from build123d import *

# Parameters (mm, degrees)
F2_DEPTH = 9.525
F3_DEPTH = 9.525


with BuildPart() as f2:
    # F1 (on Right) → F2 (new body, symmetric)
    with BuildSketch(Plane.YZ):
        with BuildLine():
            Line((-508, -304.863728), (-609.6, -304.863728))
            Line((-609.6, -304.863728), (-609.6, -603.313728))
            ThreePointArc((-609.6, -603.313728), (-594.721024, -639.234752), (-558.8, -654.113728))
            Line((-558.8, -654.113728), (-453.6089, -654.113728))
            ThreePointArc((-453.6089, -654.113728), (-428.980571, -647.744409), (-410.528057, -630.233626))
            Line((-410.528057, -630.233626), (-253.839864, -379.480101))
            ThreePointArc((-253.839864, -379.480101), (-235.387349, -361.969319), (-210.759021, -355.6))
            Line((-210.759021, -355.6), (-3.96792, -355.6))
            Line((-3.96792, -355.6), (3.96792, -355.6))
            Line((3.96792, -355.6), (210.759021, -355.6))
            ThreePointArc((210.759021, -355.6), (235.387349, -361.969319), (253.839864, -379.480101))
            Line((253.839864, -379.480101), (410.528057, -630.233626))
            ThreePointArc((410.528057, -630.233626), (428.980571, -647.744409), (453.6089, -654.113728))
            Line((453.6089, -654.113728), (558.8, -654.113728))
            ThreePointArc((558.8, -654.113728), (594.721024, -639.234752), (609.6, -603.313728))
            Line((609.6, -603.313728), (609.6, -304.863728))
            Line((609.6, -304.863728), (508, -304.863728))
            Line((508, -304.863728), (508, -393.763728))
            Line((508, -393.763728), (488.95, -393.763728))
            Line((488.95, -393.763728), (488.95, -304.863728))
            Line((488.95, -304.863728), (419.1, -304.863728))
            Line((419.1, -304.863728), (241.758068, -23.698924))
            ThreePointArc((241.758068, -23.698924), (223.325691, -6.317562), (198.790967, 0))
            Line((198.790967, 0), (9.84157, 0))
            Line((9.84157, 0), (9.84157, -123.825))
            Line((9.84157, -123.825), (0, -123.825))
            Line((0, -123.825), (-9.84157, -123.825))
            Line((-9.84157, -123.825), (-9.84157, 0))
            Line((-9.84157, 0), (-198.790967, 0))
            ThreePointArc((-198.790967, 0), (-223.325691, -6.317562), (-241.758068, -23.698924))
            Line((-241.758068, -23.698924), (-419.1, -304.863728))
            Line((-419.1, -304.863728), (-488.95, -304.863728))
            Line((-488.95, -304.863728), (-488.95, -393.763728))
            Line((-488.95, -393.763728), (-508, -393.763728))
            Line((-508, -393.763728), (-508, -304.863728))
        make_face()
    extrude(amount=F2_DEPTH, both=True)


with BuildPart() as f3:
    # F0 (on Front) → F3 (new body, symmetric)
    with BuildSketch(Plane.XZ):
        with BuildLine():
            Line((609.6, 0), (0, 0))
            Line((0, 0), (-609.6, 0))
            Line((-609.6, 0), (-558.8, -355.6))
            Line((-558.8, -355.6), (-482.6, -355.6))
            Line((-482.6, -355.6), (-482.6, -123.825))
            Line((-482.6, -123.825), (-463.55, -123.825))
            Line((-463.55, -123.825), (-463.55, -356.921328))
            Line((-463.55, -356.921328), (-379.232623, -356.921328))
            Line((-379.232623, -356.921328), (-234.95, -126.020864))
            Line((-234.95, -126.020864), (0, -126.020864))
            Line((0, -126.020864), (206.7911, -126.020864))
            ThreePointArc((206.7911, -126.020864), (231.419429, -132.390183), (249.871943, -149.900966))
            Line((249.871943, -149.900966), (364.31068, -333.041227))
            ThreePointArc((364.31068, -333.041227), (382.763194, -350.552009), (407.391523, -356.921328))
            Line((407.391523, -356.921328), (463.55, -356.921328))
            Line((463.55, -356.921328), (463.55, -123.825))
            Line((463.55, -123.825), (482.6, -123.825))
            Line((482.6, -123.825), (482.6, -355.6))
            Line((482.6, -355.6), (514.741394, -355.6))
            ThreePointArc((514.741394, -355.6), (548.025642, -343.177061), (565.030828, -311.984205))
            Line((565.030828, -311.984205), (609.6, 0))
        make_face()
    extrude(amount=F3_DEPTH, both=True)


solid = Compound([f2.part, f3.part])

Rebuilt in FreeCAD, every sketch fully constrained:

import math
import FreeCAD as App
import Part
import Sketcher
Q = App.Units.Quantity

doc = App.newDocument("Part")
params = doc.addObject("Spreadsheet::Sheet", "Params")
for row, (alias, value) in enumerate([
    ("sketch1_radius", "2.0000001 in"),
    ("sketch1_radius2", "1.9999999 in"),
    ("sketch1_width", "4 in"),
    ("sketch1_height", "3.5 in"),
    ("sketch1_width2", "0.75 in"),
    ("pad1_length", "0.75 in"),
    ("sketch2_radius", "1.9999999 in"),
    ("sketch2_radius2", "2 in"),
    ("sketch2_width", "48 in"),
    ("sketch2_width2", "3 in"),
    ("sketch2_width3", "0.75 in"),
    ("pad2_length", "0.75 in"),
], start=1):
    params.set(f"A{row}", alias)
    params.set(f"B{row}", "=" + value)
    params.setAlias(f"B{row}", alias)

body = doc.addObject("PartDesign::Body", "Body")

# Sketch on YZ plane
sketch1 = body.newObject("Sketcher::SketchObject", "Sketch")
sketch1.AttachmentSupport = (doc.getObject("YZ_Plane"), [""])
sketch1.MapMode = "FlatFace"
sketch1.addGeometry(Part.LineSegment(App.Vector(-508, -304.863728, 0), App.Vector(-609.6, -304.863728, 0)), False)
sketch1.addGeometry(Part.LineSegment(App.Vector(-609.6, -304.863728, 0), App.Vector(-609.6, -603.313728, 0)), False)
sketch1.addGeometry(Part.ArcOfCircle(Part.Circle(App.Vector(-558.799998, -603.313726, 0), App.Vector(0, 0, 1), 50.800002), math.radians(-179.999998), math.radians(-90.000002)), False)
sketch1.addGeometry(Part.LineSegment(App.Vector(-558.8, -654.113728, 0), App.Vector(-453.6089, -654.113728, 0)), False)
sketch1.addGeometry(Part.ArcOfCircle(Part.Circle(App.Vector(-453.608899, -603.313731, 0), App.Vector(0, 0, 1), 50.799997), math.radians(-90.000001), math.radians(-31.999998)), False)
sketch1.addGeometry(Part.LineSegment(App.Vector(-410.528057, -630.233626, 0), App.Vector(-253.839864, -379.480101, 0)), False)
sketch1.addGeometry(Part.ArcOfCircle(Part.Circle(App.Vector(-210.759019, -406.400003, 0), App.Vector(0, 0, 1), 50.800003), math.radians(90.000002), math.radians(147.999998)), False)
sketch1.addGeometry(Part.LineSegment(App.Vector(-210.759021, -355.6, 0), App.Vector(210.759021, -355.6, 0)), False)
sketch1.addGeometry(Part.ArcOfCircle(Part.Circle(App.Vector(210.759019, -406.400003, 0), App.Vector(0, 0, 1), 50.800003), math.radians(32.000002), math.radians(89.999998)), False)
sketch1.addGeometry(Part.LineSegment(App.Vector(253.839864, -379.480101, 0), App.Vector(410.528057, -630.233626, 0)), False)
sketch1.addGeometry(Part.ArcOfCircle(Part.Circle(App.Vector(453.608899, -603.313731, 0), App.Vector(0, 0, 1), 50.799997), math.radians(-148.000002), math.radians(-89.999999)), False)
sketch1.addGeometry(Part.LineSegment(App.Vector(453.6089, -654.113728, 0), App.Vector(558.8, -654.113728, 0)), False)
sketch1.addGeometry(Part.ArcOfCircle(Part.Circle(App.Vector(558.799998, -603.313726, 0), App.Vector(0, 0, 1), 50.800002), math.radians(-89.999998), math.radians(-0.000002)), False)
sketch1.addGeometry(Part.LineSegment(App.Vector(609.6, -603.313728, 0), App.Vector(609.6, -304.863728, 0)), False)
sketch1.addGeometry(Part.LineSegment(App.Vector(609.6, -304.863728, 0), App.Vector(508, -304.863728, 0)), False)
sketch1.addGeometry(Part.LineSegment(App.Vector(508, -304.863728, 0), App.Vector(508, -393.763728, 0)), False)
sketch1.addGeometry(Part.LineSegment(App.Vector(508, -393.763728, 0), App.Vector(488.95, -393.763728, 0)), False)
sketch1.addGeometry(Part.LineSegment(App.Vector(488.95, -393.763728, 0), App.Vector(488.95, -304.863728, 0)), False)
sketch1.addGeometry(Part.LineSegment(App.Vector(488.95, -304.863728, 0), App.Vector(419.1, -304.863728, 0)), False)
sketch1.addGeometry(Part.LineSegment(App.Vector(419.1, -304.863728, 0), App.Vector(241.758068, -23.698924, 0)), False)
sketch1.addGeometry(Part.ArcOfCircle(Part.Circle(App.Vector(198.790965, -50.800005, 0), App.Vector(0, 0, 1), 50.800005), math.radians(32.24128), math.radians(89.999998)), False)
sketch1.addGeometry(Part.LineSegment(App.Vector(198.790967, 0, 0), App.Vector(9.84157, 0, 0)), False)
sketch1.addGeometry(Part.LineSegment(App.Vector(9.84157, 0, 0), App.Vector(9.84157, -123.825, 0)), False)
sketch1.addGeometry(Part.LineSegment(App.Vector(9.84157, -123.825, 0), App.Vector(-9.84157, -123.825, 0)), False)
sketch1.addGeometry(Part.LineSegment(App.Vector(-9.84157, -123.825, 0), App.Vector(-9.84157, 0, 0)), False)
sketch1.addGeometry(Part.LineSegment(App.Vector(-9.84157, 0, 0), App.Vector(-198.790967, 0, 0)), False)
sketch1.addGeometry(Part.ArcOfCircle(Part.Circle(App.Vector(-198.790965, -50.800005, 0), App.Vector(0, 0, 1), 50.800005), math.radians(90.000002), math.radians(147.75872)), False)
sketch1.addGeometry(Part.LineSegment(App.Vector(-241.758068, -23.698924, 0), App.Vector(-419.1, -304.863728, 0)), False)
sketch1.addGeometry(Part.LineSegment(App.Vector(-419.1, -304.863728, 0), App.Vector(-488.95, -304.863728, 0)), False)
sketch1.addGeometry(Part.LineSegment(App.Vector(-488.95, -304.863728, 0), App.Vector(-488.95, -393.763728, 0)), False)
sketch1.addGeometry(Part.LineSegment(App.Vector(-488.95, -393.763728, 0), App.Vector(-508, -393.763728, 0)), False)
sketch1.addGeometry(Part.LineSegment(App.Vector(-508, -393.763728, 0), App.Vector(-508, -304.863728, 0)), False)
sketch1.addConstraint(Sketcher.Constraint("Coincident", 0, 2, 1, 1))
sketch1.addConstraint(Sketcher.Constraint("Tangent", 1, 2, 2, 1))
sketch1.addConstraint(Sketcher.Constraint("Tangent", 2, 2, 3, 1))
sketch1.addConstraint(Sketcher.Constraint("Tangent", 3, 2, 4, 1))
sketch1.addConstraint(Sketcher.Constraint("Tangent", 4, 2, 5, 1))
sketch1.addConstraint(Sketcher.Constraint("Tangent", 5, 2, 6, 2))
sketch1.addConstraint(Sketcher.Constraint("Tangent", 6, 1, 7, 1))
sketch1.addConstraint(Sketcher.Constraint("Tangent", 7, 2, 8, 2))
sketch1.addConstraint(Sketcher.Constraint("Tangent", 8, 1, 9, 1))
sketch1.addConstraint(Sketcher.Constraint("Tangent", 9, 2, 10, 1))
sketch1.addConstraint(Sketcher.Constraint("Tangent", 10, 2, 11, 1))
sketch1.addConstraint(Sketcher.Constraint("Tangent", 11, 2, 12, 1))
sketch1.addConstraint(Sketcher.Constraint("Tangent", 12, 2, 13, 1))
sketch1.addConstraint(Sketcher.Constraint("Coincident", 13, 2, 14, 1))
sketch1.addConstraint(Sketcher.Constraint("Coincident", 14, 2, 15, 1))
sketch1.addConstraint(Sketcher.Constraint("Coincident", 15, 2, 16, 1))
sketch1.addConstraint(Sketcher.Constraint("Coincident", 16, 2, 17, 1))
sketch1.addConstraint(Sketcher.Constraint("Coincident", 17, 2, 18, 1))
sketch1.addConstraint(Sketcher.Constraint("Coincident", 18, 2, 19, 1))
sketch1.addConstraint(Sketcher.Constraint("Tangent", 19, 2, 20, 1))
sketch1.addConstraint(Sketcher.Constraint("Tangent", 20, 2, 21, 1))
sketch1.addConstraint(Sketcher.Constraint("Coincident", 21, 2, 22, 1))
sketch1.addConstraint(Sketcher.Constraint("Coincident", 22, 2, 23, 1))
sketch1.addConstraint(Sketcher.Constraint("Coincident", 23, 2, 24, 1))
sketch1.addConstraint(Sketcher.Constraint("Coincident", 24, 2, 25, 1))
sketch1.addConstraint(Sketcher.Constraint("Tangent", 25, 2, 26, 1))
sketch1.addConstraint(Sketcher.Constraint("Tangent", 26, 2, 27, 1))
sketch1.addConstraint(Sketcher.Constraint("Coincident", 27, 2, 28, 1))
sketch1.addConstraint(Sketcher.Constraint("Coincident", 28, 2, 29, 1))
sketch1.addConstraint(Sketcher.Constraint("Coincident", 29, 2, 30, 1))
sketch1.addConstraint(Sketcher.Constraint("Coincident", 30, 2, 31, 1))
sketch1.addConstraint(Sketcher.Constraint("Coincident", 31, 2, 0, 1))
sketch1.addConstraint(Sketcher.Constraint("Horizontal", 0))
sketch1.addConstraint(Sketcher.Constraint("Vertical", 1))
sketch1.addConstraint(Sketcher.Constraint("Horizontal", 3))
sketch1.addConstraint(Sketcher.Constraint("Horizontal", 7))
sketch1.addConstraint(Sketcher.Constraint("Horizontal", 11))
sketch1.addConstraint(Sketcher.Constraint("Vertical", 13))
sketch1.addConstraint(Sketcher.Constraint("Horizontal", 14))
sketch1.addConstraint(Sketcher.Constraint("Vertical", 15))
sketch1.addConstraint(Sketcher.Constraint("Horizontal", 16))
sketch1.addConstraint(Sketcher.Constraint("Vertical", 17))
sketch1.addConstraint(Sketcher.Constraint("Horizontal", 18))
sketch1.addConstraint(Sketcher.Constraint("Horizontal", 21))
sketch1.addConstraint(Sketcher.Constraint("Vertical", 22))
sketch1.addConstraint(Sketcher.Constraint("Horizontal", 23))
sketch1.addConstraint(Sketcher.Constraint("Vertical", 24))
sketch1.addConstraint(Sketcher.Constraint("Horizontal", 25))
sketch1.addConstraint(Sketcher.Constraint("Horizontal", 28))
sketch1.addConstraint(Sketcher.Constraint("Vertical", 29))
sketch1.addConstraint(Sketcher.Constraint("Horizontal", 30))
sketch1.addConstraint(Sketcher.Constraint("Vertical", 31))
sketch1.addConstraint(Sketcher.Constraint("Equal", 2, 6))
sketch1.addConstraint(Sketcher.Constraint("Equal", 6, 8))
sketch1.addConstraint(Sketcher.Constraint("Equal", 4, 10))
sketch1.addConstraint(Sketcher.Constraint("Equal", 8, 12))
sketch1.addConstraint(Sketcher.Constraint("Equal", 20, 26))
sketch1.addConstraint(Sketcher.Constraint("Symmetric", 21, 2, 24, 2, -1, 1))
sketch1.addConstraint(Sketcher.Constraint("Symmetric", 4, 3, 10, 3, -2))
sketch1.addConstraint(Sketcher.Constraint("Symmetric", 20, 3, 26, 3, -2))
sketch1.addConstraint(Sketcher.Constraint("Symmetric", 0, 2, 13, 2, -2))
sketch1.addConstraint(Sketcher.Constraint("Symmetric", 18, 2, 27, 2, -2))
sketch1.addConstraint(Sketcher.Constraint("Symmetric", 16, 2, 29, 2, -2))
sketch1.addConstraint(Sketcher.Constraint("Horizontal", 5, 2, 8, 1))
sketch1.addConstraint(Sketcher.Constraint("Horizontal", 14, 2, 17, 2))
sketch1.addConstraint(Sketcher.Constraint("Equal", 0, 14))
sketch1.addConstraint(Sketcher.Constraint("Radius", 2, Q("2.0000001 in")))
sketch1.addConstraint(Sketcher.Constraint("Radius", 4, Q("1.9999999 in")))
sketch1.addConstraint(Sketcher.Constraint("DistanceX", 0, 2, 0, 1, Q("4 in")))
sketch1.addConstraint(Sketcher.Constraint("DistanceY", 15, 2, 15, 1, Q("3.5 in")))
sketch1.addConstraint(Sketcher.Constraint("DistanceX", 2, 3, -1, 1, Q("21.9999999 in")))
sketch1.addConstraint(Sketcher.Constraint("DistanceY", 6, 3, -1, 1, Q("16.0000001 in")))
sketch1.addConstraint(Sketcher.Constraint("Angle", 5, Q("58 deg")))
sketch1.addConstraint(Sketcher.Constraint("DistanceY", 8, 3, 20, 3, Q("13.9999999 in")))
sketch1.addConstraint(Sketcher.Constraint("DistanceX", 16, 2, 16, 1, Q("0.75 in")))
sketch1.addConstraint(Sketcher.Constraint("DistanceX", 18, 2, 18, 1, Q("2.75 in")))
sketch1.addConstraint(Sketcher.Constraint("DistanceY", 1, 2, 1, 1, Q("11.75 in")))
sketch1.addConstraint(Sketcher.Constraint("DistanceY", 22, 2, 22, 1, Q("4.875 in")))
sketch1.addConstraint(Sketcher.Constraint("DistanceX", 3, 1, 3, 2, Q("105.1911 mm")))
sketch1.addConstraint(Sketcher.Constraint("DistanceX", 7, 1, 7, 2, Q("421.518042 mm")))
sketch1.addConstraint(Sketcher.Constraint("DistanceX", 23, 2, 23, 1, Q("19.68314 mm")))
sketch1.addConstraint(Sketcher.Constraint("DistanceX", 5, 2, 26, 3, Q("55.048899 mm")))
sketch1.setExpression("Constraints[66]", "Params.sketch1_radius")
sketch1.setExpression("Constraints[67]", "Params.sketch1_radius2")
sketch1.setExpression("Constraints[68]", "Params.sketch1_width")
sketch1.setExpression("Constraints[69]", "Params.sketch1_height")
sketch1.setExpression("Constraints[74]", "Params.sketch1_width2")
pad1 = body.newObject("PartDesign::Pad", "Pad")
pad1.Profile = sketch1
pad1.setExpression("Length", "Params.pad1_length")
pad1.Midplane = True
body2 = doc.addObject("PartDesign::Body", "Body001")

# Sketch on XZ plane
sketch2 = body2.newObject("Sketcher::SketchObject", "Sketch001")
sketch2.AttachmentSupport = (doc.getObject("XZ_Plane001"), [""])
sketch2.MapMode = "FlatFace"
sketch2.addGeometry(Part.LineSegment(App.Vector(609.6, 0, 0), App.Vector(-609.6, 0, 0)), False)
sketch2.addGeometry(Part.LineSegment(App.Vector(-609.6, 0, 0), App.Vector(-558.8, -355.6, 0)), False)
sketch2.addGeometry(Part.LineSegment(App.Vector(-558.8, -355.6, 0), App.Vector(-482.6, -355.6, 0)), False)
sketch2.addGeometry(Part.LineSegment(App.Vector(-482.6, -355.6, 0), App.Vector(-482.6, -123.825, 0)), False)
sketch2.addGeometry(Part.LineSegment(App.Vector(-482.6, -123.825, 0), App.Vector(-463.55, -123.825, 0)), False)
sketch2.addGeometry(Part.LineSegment(App.Vector(-463.55, -123.825, 0), App.Vector(-463.55, -356.921328, 0)), False)
sketch2.addGeometry(Part.LineSegment(App.Vector(-463.55, -356.921328, 0), App.Vector(-379.232623, -356.921328, 0)), False)
sketch2.addGeometry(Part.LineSegment(App.Vector(-379.232623, -356.921328, 0), App.Vector(-234.95, -126.020864, 0)), False)
sketch2.addGeometry(Part.LineSegment(App.Vector(-234.95, -126.020864, 0), App.Vector(206.7911, -126.020864, 0)), False)
sketch2.addGeometry(Part.ArcOfCircle(Part.Circle(App.Vector(206.791101, -176.820861, 0), App.Vector(0, 0, 1), 50.799997), math.radians(31.999998), math.radians(90.000001)), False)
sketch2.addGeometry(Part.LineSegment(App.Vector(249.871943, -149.900966, 0), App.Vector(364.31068, -333.041227, 0)), False)
sketch2.addGeometry(Part.ArcOfCircle(Part.Circle(App.Vector(407.391523, -306.121328, 0), App.Vector(0, 0, 1), 50.8), math.radians(-148), math.radians(-90)), False)
sketch2.addGeometry(Part.LineSegment(App.Vector(407.391523, -356.921328, 0), App.Vector(463.55, -356.921328, 0)), False)
sketch2.addGeometry(Part.LineSegment(App.Vector(463.55, -356.921328, 0), App.Vector(463.55, -123.825, 0)), False)
sketch2.addGeometry(Part.LineSegment(App.Vector(463.55, -123.825, 0), App.Vector(482.6, -123.825, 0)), False)
sketch2.addGeometry(Part.LineSegment(App.Vector(482.6, -123.825, 0), App.Vector(482.6, -355.6, 0)), False)
sketch2.addGeometry(Part.LineSegment(App.Vector(482.6, -355.6, 0), App.Vector(514.741394, -355.6, 0)), False)
sketch2.addGeometry(Part.ArcOfCircle(Part.Circle(App.Vector(514.741394, -304.8, 0), App.Vector(0, 0, 1), 50.8), math.radians(-90), math.radians(-8.130103)), False)
sketch2.addGeometry(Part.LineSegment(App.Vector(565.030828, -311.984205, 0), App.Vector(609.6, 0, 0)), False)
sketch2.addConstraint(Sketcher.Constraint("Coincident", 0, 2, 1, 1))
sketch2.addConstraint(Sketcher.Constraint("Coincident", 1, 2, 2, 1))
sketch2.addConstraint(Sketcher.Constraint("Coincident", 2, 2, 3, 1))
sketch2.addConstraint(Sketcher.Constraint("Coincident", 3, 2, 4, 1))
sketch2.addConstraint(Sketcher.Constraint("Coincident", 4, 2, 5, 1))
sketch2.addConstraint(Sketcher.Constraint("Coincident", 5, 2, 6, 1))
sketch2.addConstraint(Sketcher.Constraint("Coincident", 6, 2, 7, 1))
sketch2.addConstraint(Sketcher.Constraint("Coincident", 7, 2, 8, 1))
sketch2.addConstraint(Sketcher.Constraint("Tangent", 8, 2, 9, 2))
sketch2.addConstraint(Sketcher.Constraint("Tangent", 9, 1, 10, 1))
sketch2.addConstraint(Sketcher.Constraint("Tangent", 10, 2, 11, 1))
sketch2.addConstraint(Sketcher.Constraint("Tangent", 11, 2, 12, 1))
sketch2.addConstraint(Sketcher.Constraint("Coincident", 12, 2, 13, 1))
sketch2.addConstraint(Sketcher.Constraint("Coincident", 13, 2, 14, 1))
sketch2.addConstraint(Sketcher.Constraint("Coincident", 14, 2, 15, 1))
sketch2.addConstraint(Sketcher.Constraint("Coincident", 15, 2, 16, 1))
sketch2.addConstraint(Sketcher.Constraint("Tangent", 16, 2, 17, 1))
sketch2.addConstraint(Sketcher.Constraint("Tangent", 17, 2, 18, 1))
sketch2.addConstraint(Sketcher.Constraint("Coincident", 18, 2, 0, 1))
sketch2.addConstraint(Sketcher.Constraint("Horizontal", 0))
sketch2.addConstraint(Sketcher.Constraint("Horizontal", 2))
sketch2.addConstraint(Sketcher.Constraint("Vertical", 3))
sketch2.addConstraint(Sketcher.Constraint("Horizontal", 4))
sketch2.addConstraint(Sketcher.Constraint("Vertical", 5))
sketch2.addConstraint(Sketcher.Constraint("Horizontal", 6))
sketch2.addConstraint(Sketcher.Constraint("Horizontal", 8))
sketch2.addConstraint(Sketcher.Constraint("Horizontal", 12))
sketch2.addConstraint(Sketcher.Constraint("Vertical", 13))
sketch2.addConstraint(Sketcher.Constraint("Horizontal", 14))
sketch2.addConstraint(Sketcher.Constraint("Vertical", 15))
sketch2.addConstraint(Sketcher.Constraint("Horizontal", 16))
sketch2.addConstraint(Sketcher.Constraint("Equal", 11, 17))
sketch2.addConstraint(Sketcher.Constraint("Symmetric", 0, 2, 18, 2, -1, 1))
sketch2.addConstraint(Sketcher.Constraint("Symmetric", 5, 2, 12, 2, -2))
sketch2.addConstraint(Sketcher.Constraint("Symmetric", 3, 2, 14, 2, -2))
sketch2.addConstraint(Sketcher.Constraint("Horizontal", 2, 2, 15, 2))
sketch2.addConstraint(Sketcher.Constraint("Radius", 9, Q("1.9999999 in")))
sketch2.addConstraint(Sketcher.Constraint("Radius", 11, Q("2 in")))
sketch2.addConstraint(Sketcher.Constraint("DistanceX", 0, 2, 0, 1, Q("48 in")))
sketch2.addConstraint(Sketcher.Constraint("DistanceX", 2, 1, 2, 2, Q("3 in")))
sketch2.addConstraint(Sketcher.Constraint("DistanceY", 17, 3, -1, 1, Q("12 in")))
sketch2.addConstraint(Sketcher.Constraint("DistanceX", 1, 2, -1, 1, Q("22 in")))
sketch2.addConstraint(Sketcher.Constraint("Angle", 7, Q("58 deg")))
sketch2.addConstraint(Sketcher.Constraint("Angle", 10, Q("-58 deg")))
sketch2.addConstraint(Sketcher.Constraint("DistanceX", 4, 2, 7, 2, Q("9 in")))
sketch2.addConstraint(Sketcher.Constraint("DistanceX", 4, 1, 4, 2, Q("0.75 in")))
sketch2.addConstraint(Sketcher.Constraint("DistanceY", 3, 1, 3, 2, Q("9.125 in")))
sketch2.addConstraint(Sketcher.Constraint("DistanceX", 8, 1, 8, 2, Q("441.7411 mm")))
sketch2.addConstraint(Sketcher.Constraint("DistanceX", 6, 2, 8, 2, Q("23.0718001 in")))
sketch2.addConstraint(Sketcher.Constraint("DistanceY", 5, 2, 5, 1, Q("233.096328 mm")))
sketch2.addConstraint(Sketcher.Constraint("Distance", 18, Q("315.151639 mm")))
sketch2.setExpression("Constraints[36]", "Params.sketch2_radius")
sketch2.setExpression("Constraints[37]", "Params.sketch2_radius2")
sketch2.setExpression("Constraints[38]", "Params.sketch2_width")
sketch2.setExpression("Constraints[39]", "Params.sketch2_width2")
sketch2.setExpression("Constraints[45]", "Params.sketch2_width3")
pad2 = body2.newObject("PartDesign::Pad", "Pad001")
pad2.Profile = sketch2
pad2.setExpression("Length", "Params.pad2_length")
pad2.Midplane = True

doc.recompute()
